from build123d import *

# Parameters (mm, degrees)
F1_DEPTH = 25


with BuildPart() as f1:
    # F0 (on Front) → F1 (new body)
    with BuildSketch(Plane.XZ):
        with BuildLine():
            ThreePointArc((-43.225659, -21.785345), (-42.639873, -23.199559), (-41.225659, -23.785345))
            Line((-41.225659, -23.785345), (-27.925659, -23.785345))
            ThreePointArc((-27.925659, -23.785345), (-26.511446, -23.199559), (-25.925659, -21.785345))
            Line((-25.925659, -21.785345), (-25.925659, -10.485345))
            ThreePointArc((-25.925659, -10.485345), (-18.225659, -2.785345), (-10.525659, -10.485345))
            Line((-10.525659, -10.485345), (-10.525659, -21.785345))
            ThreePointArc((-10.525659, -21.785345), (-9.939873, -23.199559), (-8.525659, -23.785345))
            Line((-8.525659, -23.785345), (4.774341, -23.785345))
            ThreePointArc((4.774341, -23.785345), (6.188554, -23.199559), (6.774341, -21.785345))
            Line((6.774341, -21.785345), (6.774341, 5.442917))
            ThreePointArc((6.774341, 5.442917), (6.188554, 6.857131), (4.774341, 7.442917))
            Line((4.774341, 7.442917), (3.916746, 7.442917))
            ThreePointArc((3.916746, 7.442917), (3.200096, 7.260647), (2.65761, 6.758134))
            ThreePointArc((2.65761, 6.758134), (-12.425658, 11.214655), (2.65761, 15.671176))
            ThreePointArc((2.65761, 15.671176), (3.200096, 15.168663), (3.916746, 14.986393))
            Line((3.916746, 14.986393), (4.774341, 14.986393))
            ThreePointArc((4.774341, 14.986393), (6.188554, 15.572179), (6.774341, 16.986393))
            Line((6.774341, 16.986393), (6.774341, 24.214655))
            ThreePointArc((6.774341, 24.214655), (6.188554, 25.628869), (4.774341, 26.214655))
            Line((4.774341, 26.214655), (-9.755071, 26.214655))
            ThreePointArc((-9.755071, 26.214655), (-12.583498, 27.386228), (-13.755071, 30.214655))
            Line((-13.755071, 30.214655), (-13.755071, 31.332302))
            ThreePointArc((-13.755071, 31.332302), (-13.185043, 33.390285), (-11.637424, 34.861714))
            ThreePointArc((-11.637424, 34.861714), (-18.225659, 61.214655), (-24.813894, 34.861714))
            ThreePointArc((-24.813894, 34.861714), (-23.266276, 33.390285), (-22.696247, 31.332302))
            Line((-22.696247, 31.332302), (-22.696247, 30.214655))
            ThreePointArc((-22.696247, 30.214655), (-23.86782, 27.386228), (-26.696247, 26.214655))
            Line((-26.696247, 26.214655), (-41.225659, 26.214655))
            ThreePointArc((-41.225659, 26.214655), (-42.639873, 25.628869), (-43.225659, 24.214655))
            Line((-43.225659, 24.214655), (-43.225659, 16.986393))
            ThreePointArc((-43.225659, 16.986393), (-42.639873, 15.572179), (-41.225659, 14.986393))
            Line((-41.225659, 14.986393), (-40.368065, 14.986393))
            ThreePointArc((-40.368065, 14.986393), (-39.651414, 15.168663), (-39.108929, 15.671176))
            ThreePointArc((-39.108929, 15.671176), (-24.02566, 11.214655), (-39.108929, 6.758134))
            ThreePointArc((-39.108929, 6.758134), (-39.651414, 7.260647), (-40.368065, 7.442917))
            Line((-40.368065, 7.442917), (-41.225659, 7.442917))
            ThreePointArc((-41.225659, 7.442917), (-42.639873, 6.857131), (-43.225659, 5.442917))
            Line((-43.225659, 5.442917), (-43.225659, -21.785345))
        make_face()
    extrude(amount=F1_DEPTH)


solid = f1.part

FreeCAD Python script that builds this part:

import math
import FreeCAD as App
import Part
import Sketcher

doc = App.newDocument("Part")
body = doc.addObject("PartDesign::Body", "Body")

sketch1 = doc.addObject("Sketcher::SketchObject", "Sketch")
body.addObject(sketch1)
sketch1.AttachmentSupport = (doc.XZ_Plane, [""])
sketch1.MapMode = "FlatFace"
sketch1.addGeometry(Part.ArcOfCircle(Part.Circle(App.Vector(-41.2, -21.8, 0), App.Vector(0, 0, 1), 2), math.radians(180), math.radians(270)), False)
sketch1.addGeometry(Part.LineSegment(App.Vector(-41.2, -23.8, 0), App.Vector(-27.9, -23.8, 0)), False)
sketch1.addGeometry(Part.ArcOfCircle(Part.Circle(App.Vector(-27.9, -21.8, 0), App.Vector(0, 0, 1), 2), math.radians(-90), math.radians(0)), False)
sketch1.addGeometry(Part.LineSegment(App.Vector(-25.9, -21.8, 0), App.Vector(-25.9, -10.5, 0)), False)
sketch1.addGeometry(Part.ArcOfCircle(Part.Circle(App.Vector(-18.2, -10.5, 0), App.Vector(0, 0, 1), 7.7), math.radians(0), math.radians(180)), False)
sketch1.addGeometry(Part.LineSegment(App.Vector(-10.5, -10.5, 0), App.Vector(-10.5, -21.8, 0)), False)
sketch1.addGeometry(Part.ArcOfCircle(Part.Circle(App.Vector(-8.5, -21.8, 0), App.Vector(0, 0, 1), 2), math.radians(180), math.radians(270)), False)
sketch1.addGeometry(Part.LineSegment(App.Vector(-8.5, -23.8, 0), App.Vector(4.8, -23.8, 0)), False)
sketch1.addGeometry(Part.ArcOfCircle(Part.Circle(App.Vector(4.8, -21.8, 0), App.Vector(0, 0, 1), 2), math.radians(-90), math.radians(0)), False)
sketch1.addGeometry(Part.LineSegment(App.Vector(6.8, -21.8, 0), App.Vector(6.8, 5.4, 0)), False)
sketch1.addGeometry(Part.ArcOfCircle(Part.Circle(App.Vector(4.8, 5.4, 0), App.Vector(0, 0, 1), 2), math.radians(0), math.radians(90)), False)
sketch1.addGeometry(Part.LineSegment(App.Vector(4.8, 7.4, 0), App.Vector(3.9, 7.4, 0)), False)
sketch1.addGeometry(Part.ArcOfCircle(Part.Circle(App.Vector(3.9, 5.9, 0), App.Vector(0, 0, 1), 1.5), math.radians(90), math.radians(147)), False)
sketch1.addGeometry(Part.ArcOfCircle(Part.Circle(App.Vector(-4.2, 11.2, 0), App.Vector(0, 0, 1), 8.2), math.radians(33), math.radians(327)), False)
sketch1.addGeometry(Part.ArcOfCircle(Part.Circle(App.Vector(3.9, 16.5, 0), App.Vector(0, 0, 1), 1.5), math.radians(-147), math.radians(-90)), False)
sketch1.addGeometry(Part.LineSegment(App.Vector(3.9, 15, 0), App.Vector(4.8, 15, 0)), False)
sketch1.addGeometry(Part.ArcOfCircle(Part.Circle(App.Vector(4.8, 17, 0), App.Vector(0, 0, 1), 2), math.radians(-90), math.radians(0)), False)
sketch1.addGeometry(Part.LineSegment(App.Vector(6.8, 17, 0), App.Vector(6.8, 24.2, 0)), False)
sketch1.addGeometry(Part.ArcOfCircle(Part.Circle(App.Vector(4.8, 24.2, 0), App.Vector(0, 0, 1), 2), math.radians(0), math.radians(90)), False)
sketch1.addGeometry(Part.LineSegment(App.Vector(4.8, 26.2, 0), App.Vector(-9.8, 26.2, 0)), False)
sketch1.addGeometry(Part.ArcOfCircle(Part.Circle(App.Vector(-9.8, 30.2, 0), App.Vector(0, 0, 1), 4), math.radians(-180), math.radians(-90)), False)
sketch1.addGeometry(Part.LineSegment(App.Vector(-13.8, 30.2, 0), App.Vector(-13.8, 31.3, 0)), False)
sketch1.addGeometry(Part.ArcOfCircle(Part.Circle(App.Vector(-9.8, 31.3, 0), App.Vector(0, 0, 1), 4), math.radians(118), math.radians(180)), False)
sketch1.addGeometry(Part.ArcOfCircle(Part.Circle(App.Vector(-18.2, 47.2, 0), App.Vector(0, 0, 1), 14), math.radians(-62), math.radians(242)), False)
sketch1.addGeometry(Part.ArcOfCircle(Part.Circle(App.Vector(-26.7, 31.3, 0), App.Vector(0, 0, 1), 4), math.radians(0), math.radians(62)), False)
sketch1.addGeometry(Part.LineSegment(App.Vector(-22.7, 31.3, 0), App.Vector(-22.7, 30.2, 0)), False)
sketch1.addGeometry(Part.ArcOfCircle(Part.Circle(App.Vector(-26.7, 30.2, 0), App.Vector(0, 0, 1), 4), math.radians(-90), math.radians(0)), False)
sketch1.addGeometry(Part.LineSegment(App.Vector(-26.7, 26.2, 0), App.Vector(-41.2, 26.2, 0)), False)
sketch1.addGeometry(Part.ArcOfCircle(Part.Circle(App.Vector(-41.2, 24.2, 0), App.Vector(0, 0, 1), 2), math.radians(90), math.radians(180)), False)
sketch1.addGeometry(Part.LineSegment(App.Vector(-43.2, 24.2, 0), App.Vector(-43.2, 17, 0)), False)
sketch1.addGeometry(Part.ArcOfCircle(Part.Circle(App.Vector(-41.2, 17, 0), App.Vector(0, 0, 1), 2), math.radians(180), math.radians(270)), False)
sketch1.addGeometry(Part.LineSegment(App.Vector(-41.2, 15, 0), App.Vector(-40.4, 15, 0)), False)
sketch1.addGeometry(Part.ArcOfCircle(Part.Circle(App.Vector(-40.4, 16.5, 0), App.Vector(0, 0, 1), 1.5), math.radians(-90), math.radians(-33)), False)
sketch1.addGeometry(Part.ArcOfCircle(Part.Circle(App.Vector(-32.2, 11.2, 0), App.Vector(0, 0, 1), 8.2), math.radians(-147), math.radians(147)), False)
sketch1.addGeometry(Part.ArcOfCircle(Part.Circle(App.Vector(-40.4, 5.9, 0), App.Vector(0, 0, 1), 1.5), math.radians(33), math.radians(90)), False)
sketch1.addGeometry(Part.LineSegment(App.Vector(-40.4, 7.4, 0), App.Vector(-41.2, 7.4, 0)), False)
sketch1.addGeometry(Part.ArcOfCircle(Part.Circle(App.Vector(-41.2, 5.4, 0), App.Vector(0, 0, 1), 2), math.radians(90), math.radians(180)), False)
sketch1.addGeometry(Part.LineSegment(App.Vector(-43.2, 5.4, 0), App.Vector(-43.2, -21.8, 0)), False)
sketch1.addConstraint(Sketcher.Constraint("Tangent", 0, 2, 1, 1))
sketch1.addConstraint(Sketcher.Constraint("Tangent", 1, 2, 2, 1))
sketch1.addConstraint(Sketcher.Constraint("Tangent", 2, 2, 3, 1))
sketch1.addConstraint(Sketcher.Constraint("Tangent", 3, 2, 4, 2))
sketch1.addConstraint(Sketcher.Constraint("Tangent", 4, 1, 5, 1))
sketch1.addConstraint(Sketcher.Constraint("Tangent", 5, 2, 6, 1))
sketch1.addConstraint(Sketcher.Constraint("Tangent", 6, 2, 7, 1))
sketch1.addConstraint(Sketcher.Constraint("Tangent", 7, 2, 8, 1))
sketch1.addConstraint(Sketcher.Constraint("Tangent", 8, 2, 9, 1))
sketch1.addConstraint(Sketcher.Constraint("Tangent", 9, 2, 10, 1))
sketch1.addConstraint(Sketcher.Constraint("Tangent", 10, 2, 11, 1))
sketch1.addConstraint(Sketcher.Constraint("Tangent", 11, 2, 12, 1))
sketch1.addConstraint(Sketcher.Constraint("Tangent", 12, 2, 13, 2))
sketch1.addConstraint(Sketcher.Constraint("Tangent", 13, 1, 14, 1))
sketch1.addConstraint(Sketcher.Constraint("Tangent", 14, 2, 15, 1))
sketch1.addConstraint(Sketcher.Constraint("Tangent", 15, 2, 16, 1))
sketch1.addConstraint(Sketcher.Constraint("Tangent", 16, 2, 17, 1))
sketch1.addConstraint(Sketcher.Constraint("Tangent", 17, 2, 18, 1))
sketch1.addConstraint(Sketcher.Constraint("Tangent", 18, 2, 19, 1))
sketch1.addConstraint(Sketcher.Constraint("Tangent", 19, 2, 20, 2))
sketch1.addConstraint(Sketcher.Constraint("Tangent", 20, 1, 21, 1))
sketch1.addConstraint(Sketcher.Constraint("Tangent", 21, 2, 22, 2))
sketch1.addConstraint(Sketcher.Constraint("Tangent", 22, 1, 23, 1))
sketch1.addConstraint(Sketcher.Constraint("Tangent", 23, 2, 24, 2))
sketch1.addConstraint(Sketcher.Constraint("Tangent", 24, 1, 25, 1))
sketch1.addConstraint(Sketcher.Constraint("Tangent", 25, 2, 26, 2))
sketch1.addConstraint(Sketcher.Constraint("Tangent", 26, 1, 27, 1))
sketch1.addConstraint(Sketcher.Constraint("Tangent", 27, 2, 28, 1))
sketch1.addConstraint(Sketcher.Constraint("Tangent", 28, 2, 29, 1))
sketch1.addConstraint(Sketcher.Constraint("Tangent", 29, 2, 30, 1))
sketch1.addConstraint(Sketcher.Constraint("Tangent", 30, 2, 31, 1))
sketch1.addConstraint(Sketcher.Constraint("Tangent", 31, 2, 32, 1))
sketch1.addConstraint(Sketcher.Constraint("Tangent", 32, 2, 33, 2))
sketch1.addConstraint(Sketcher.Constraint("Tangent", 33, 1, 34, 1))
sketch1.addConstraint(Sketcher.Constraint("Tangent", 34, 2, 35, 1))
sketch1.addConstraint(Sketcher.Constraint("Tangent", 35, 2, 36, 1))
sketch1.addConstraint(Sketcher.Constraint("Tangent", 36, 2, 37, 1))
sketch1.addConstraint(Sketcher.Constraint("Tangent", 37, 2, 0, 1))
sketch1.addConstraint(Sketcher.Constraint("Horizontal", 1))
sketch1.addConstraint(Sketcher.Constraint("Vertical", 3))
sketch1.addConstraint(Sketcher.Constraint("Vertical", 5))
sketch1.addConstraint(Sketcher.Constraint("Horizontal", 7))
sketch1.addConstraint(Sketcher.Constraint("Vertical", 9))
sketch1.addConstraint(Sketcher.Constraint("Horizontal", 11))
sketch1.addConstraint(Sketcher.Constraint("Horizontal", 15))
sketch1.addConstraint(Sketcher.Constraint("Vertical", 17))
sketch1.addConstraint(Sketcher.Constraint("Horizontal", 19))
sketch1.addConstraint(Sketcher.Constraint("Vertical", 21))
sketch1.addConstraint(Sketcher.Constraint("Vertical", 25))
sketch1.addConstraint(Sketcher.Constraint("Horizontal", 27))
sketch1.addConstraint(Sketcher.Constraint("Vertical", 29))
sketch1.addConstraint(Sketcher.Constraint("Horizontal", 31))
sketch1.addConstraint(Sketcher.Constraint("Horizontal", 35))
sketch1.addConstraint(Sketcher.Constraint("Vertical", 37))
sketch1.addConstraint(Sketcher.Constraint("Equal", 0, 2))
sketch1.addConstraint(Sketcher.Constraint("Equal", 2, 6))
sketch1.addConstraint(Sketcher.Constraint("Equal", 6, 8))
sketch1.addConstraint(Sketcher.Constraint("Equal", 8, 10))
sketch1.addConstraint(Sketcher.Constraint("Equal", 12, 14))
sketch1.addConstraint(Sketcher.Constraint("Equal", 10, 16))
sketch1.addConstraint(Sketcher.Constraint("Equal", 16, 18))
sketch1.addConstraint(Sketcher.Constraint("Equal", 20, 22))
sketch1.addConstraint(Sketcher.Constraint("Equal", 22, 26))
sketch1.addConstraint(Sketcher.Constraint("Equal", 18, 28))
sketch1.addConstraint(Sketcher.Constraint("Equal", 28, 30))
sketch1.addConstraint(Sketcher.Constraint("Equal", 13, 33))
sketch1.addConstraint(Sketcher.Constraint("Equal", 32, 34))
sketch1.addConstraint(Sketcher.Constraint("Equal", 30, 36))
sketch1.addConstraint(Sketcher.Constraint("Horizontal", 2, 3, 6, 3))
sketch1.addConstraint(Sketcher.Constraint("Horizontal", 20, 3, 26, 3))
sketch1.addConstraint(Sketcher.Constraint("Horizontal", 16, 3, 30, 3))
sketch1.addConstraint(Sketcher.Constraint("Horizontal", 13, 3, 33, 3))
sketch1.addConstraint(Sketcher.Constraint("Horizontal", 10, 3, 36, 3))
sketch1.addConstraint(Sketcher.Constraint("Horizontal", 22, 1, 23, 2))
sketch1.addConstraint(Sketcher.Constraint("Horizontal", 21, 2, 24, 1))
sketch1.addConstraint(Sketcher.Constraint("Horizontal", 13, 1, 32, 2))
sketch1.addConstraint(Sketcher.Constraint("Vertical", 12, 3, 14, 3))
sketch1.addConstraint(Sketcher.Constraint("Vertical", 10, 3, 16, 3))
sketch1.addConstraint(Sketcher.Constraint("Vertical", 4, 3, 23, 3))
sketch1.addConstraint(Sketcher.Constraint("Vertical", 0, 3, 28, 3))
sketch1.addConstraint(Sketcher.Constraint("Equal", 1, 7))
sketch1.addConstraint(Sketcher.Constraint("Equal", 15, 31))
sketch1.addConstraint(Sketcher.Constraint("Radius", 0, 1.999999))
sketch1.addConstraint(Sketcher.Constraint("Radius", 20, 4.0))
sketch1.addConstraint(Sketcher.Constraint("Radius", 23, 14.0))
sketch1.addConstraint(Sketcher.Constraint("Radius", 4, 7.7))
sketch1.addConstraint(Sketcher.Constraint("Radius", 13, 8.199999))
sketch1.addConstraint(Sketcher.Constraint("Radius", 32, 1.500001))
sketch1.addConstraint(Sketcher.Constraint("DistanceX", 1, 1, 1, 2, 13.3))
sketch1.addConstraint(Sketcher.Constraint("DistanceY", 3, 1, 3, 2, 11.3))
sketch1.addConstraint(Sketcher.Constraint("DistanceX", 13, 3, 10, 3, 9.0))
sketch1.addConstraint(Sketcher.Constraint("DistanceY", 6, 3, 13, 3, 33.000001))
sketch1.addConstraint(Sketcher.Constraint("DistanceY", 13, 3, 18, 3, 13.0))
sketch1.addConstraint(Sketcher.Constraint("DistanceY", 20, 3, 23, 3, 17.0))
sketch1.addConstraint(Sketcher.Constraint("DistanceX", 19, 2, 19, 1, 14.529412))
sketch1.addConstraint(Sketcher.Constraint("DistanceY", -1, 1, 24, 3, 31.3323))
sketch1.addConstraint(Sketcher.Constraint("DistanceX", 11, 2, 11, 1, 0.857595))
sketch1.addConstraint(Sketcher.Constraint("DistanceX", 0, 3, -1, 1, 41.22566))
pad1 = doc.addObject("PartDesign::Pad", "Pad")
body.addObject(pad1)
pad1.Profile = sketch1
pad1.Length = 25

doc.recompute()
